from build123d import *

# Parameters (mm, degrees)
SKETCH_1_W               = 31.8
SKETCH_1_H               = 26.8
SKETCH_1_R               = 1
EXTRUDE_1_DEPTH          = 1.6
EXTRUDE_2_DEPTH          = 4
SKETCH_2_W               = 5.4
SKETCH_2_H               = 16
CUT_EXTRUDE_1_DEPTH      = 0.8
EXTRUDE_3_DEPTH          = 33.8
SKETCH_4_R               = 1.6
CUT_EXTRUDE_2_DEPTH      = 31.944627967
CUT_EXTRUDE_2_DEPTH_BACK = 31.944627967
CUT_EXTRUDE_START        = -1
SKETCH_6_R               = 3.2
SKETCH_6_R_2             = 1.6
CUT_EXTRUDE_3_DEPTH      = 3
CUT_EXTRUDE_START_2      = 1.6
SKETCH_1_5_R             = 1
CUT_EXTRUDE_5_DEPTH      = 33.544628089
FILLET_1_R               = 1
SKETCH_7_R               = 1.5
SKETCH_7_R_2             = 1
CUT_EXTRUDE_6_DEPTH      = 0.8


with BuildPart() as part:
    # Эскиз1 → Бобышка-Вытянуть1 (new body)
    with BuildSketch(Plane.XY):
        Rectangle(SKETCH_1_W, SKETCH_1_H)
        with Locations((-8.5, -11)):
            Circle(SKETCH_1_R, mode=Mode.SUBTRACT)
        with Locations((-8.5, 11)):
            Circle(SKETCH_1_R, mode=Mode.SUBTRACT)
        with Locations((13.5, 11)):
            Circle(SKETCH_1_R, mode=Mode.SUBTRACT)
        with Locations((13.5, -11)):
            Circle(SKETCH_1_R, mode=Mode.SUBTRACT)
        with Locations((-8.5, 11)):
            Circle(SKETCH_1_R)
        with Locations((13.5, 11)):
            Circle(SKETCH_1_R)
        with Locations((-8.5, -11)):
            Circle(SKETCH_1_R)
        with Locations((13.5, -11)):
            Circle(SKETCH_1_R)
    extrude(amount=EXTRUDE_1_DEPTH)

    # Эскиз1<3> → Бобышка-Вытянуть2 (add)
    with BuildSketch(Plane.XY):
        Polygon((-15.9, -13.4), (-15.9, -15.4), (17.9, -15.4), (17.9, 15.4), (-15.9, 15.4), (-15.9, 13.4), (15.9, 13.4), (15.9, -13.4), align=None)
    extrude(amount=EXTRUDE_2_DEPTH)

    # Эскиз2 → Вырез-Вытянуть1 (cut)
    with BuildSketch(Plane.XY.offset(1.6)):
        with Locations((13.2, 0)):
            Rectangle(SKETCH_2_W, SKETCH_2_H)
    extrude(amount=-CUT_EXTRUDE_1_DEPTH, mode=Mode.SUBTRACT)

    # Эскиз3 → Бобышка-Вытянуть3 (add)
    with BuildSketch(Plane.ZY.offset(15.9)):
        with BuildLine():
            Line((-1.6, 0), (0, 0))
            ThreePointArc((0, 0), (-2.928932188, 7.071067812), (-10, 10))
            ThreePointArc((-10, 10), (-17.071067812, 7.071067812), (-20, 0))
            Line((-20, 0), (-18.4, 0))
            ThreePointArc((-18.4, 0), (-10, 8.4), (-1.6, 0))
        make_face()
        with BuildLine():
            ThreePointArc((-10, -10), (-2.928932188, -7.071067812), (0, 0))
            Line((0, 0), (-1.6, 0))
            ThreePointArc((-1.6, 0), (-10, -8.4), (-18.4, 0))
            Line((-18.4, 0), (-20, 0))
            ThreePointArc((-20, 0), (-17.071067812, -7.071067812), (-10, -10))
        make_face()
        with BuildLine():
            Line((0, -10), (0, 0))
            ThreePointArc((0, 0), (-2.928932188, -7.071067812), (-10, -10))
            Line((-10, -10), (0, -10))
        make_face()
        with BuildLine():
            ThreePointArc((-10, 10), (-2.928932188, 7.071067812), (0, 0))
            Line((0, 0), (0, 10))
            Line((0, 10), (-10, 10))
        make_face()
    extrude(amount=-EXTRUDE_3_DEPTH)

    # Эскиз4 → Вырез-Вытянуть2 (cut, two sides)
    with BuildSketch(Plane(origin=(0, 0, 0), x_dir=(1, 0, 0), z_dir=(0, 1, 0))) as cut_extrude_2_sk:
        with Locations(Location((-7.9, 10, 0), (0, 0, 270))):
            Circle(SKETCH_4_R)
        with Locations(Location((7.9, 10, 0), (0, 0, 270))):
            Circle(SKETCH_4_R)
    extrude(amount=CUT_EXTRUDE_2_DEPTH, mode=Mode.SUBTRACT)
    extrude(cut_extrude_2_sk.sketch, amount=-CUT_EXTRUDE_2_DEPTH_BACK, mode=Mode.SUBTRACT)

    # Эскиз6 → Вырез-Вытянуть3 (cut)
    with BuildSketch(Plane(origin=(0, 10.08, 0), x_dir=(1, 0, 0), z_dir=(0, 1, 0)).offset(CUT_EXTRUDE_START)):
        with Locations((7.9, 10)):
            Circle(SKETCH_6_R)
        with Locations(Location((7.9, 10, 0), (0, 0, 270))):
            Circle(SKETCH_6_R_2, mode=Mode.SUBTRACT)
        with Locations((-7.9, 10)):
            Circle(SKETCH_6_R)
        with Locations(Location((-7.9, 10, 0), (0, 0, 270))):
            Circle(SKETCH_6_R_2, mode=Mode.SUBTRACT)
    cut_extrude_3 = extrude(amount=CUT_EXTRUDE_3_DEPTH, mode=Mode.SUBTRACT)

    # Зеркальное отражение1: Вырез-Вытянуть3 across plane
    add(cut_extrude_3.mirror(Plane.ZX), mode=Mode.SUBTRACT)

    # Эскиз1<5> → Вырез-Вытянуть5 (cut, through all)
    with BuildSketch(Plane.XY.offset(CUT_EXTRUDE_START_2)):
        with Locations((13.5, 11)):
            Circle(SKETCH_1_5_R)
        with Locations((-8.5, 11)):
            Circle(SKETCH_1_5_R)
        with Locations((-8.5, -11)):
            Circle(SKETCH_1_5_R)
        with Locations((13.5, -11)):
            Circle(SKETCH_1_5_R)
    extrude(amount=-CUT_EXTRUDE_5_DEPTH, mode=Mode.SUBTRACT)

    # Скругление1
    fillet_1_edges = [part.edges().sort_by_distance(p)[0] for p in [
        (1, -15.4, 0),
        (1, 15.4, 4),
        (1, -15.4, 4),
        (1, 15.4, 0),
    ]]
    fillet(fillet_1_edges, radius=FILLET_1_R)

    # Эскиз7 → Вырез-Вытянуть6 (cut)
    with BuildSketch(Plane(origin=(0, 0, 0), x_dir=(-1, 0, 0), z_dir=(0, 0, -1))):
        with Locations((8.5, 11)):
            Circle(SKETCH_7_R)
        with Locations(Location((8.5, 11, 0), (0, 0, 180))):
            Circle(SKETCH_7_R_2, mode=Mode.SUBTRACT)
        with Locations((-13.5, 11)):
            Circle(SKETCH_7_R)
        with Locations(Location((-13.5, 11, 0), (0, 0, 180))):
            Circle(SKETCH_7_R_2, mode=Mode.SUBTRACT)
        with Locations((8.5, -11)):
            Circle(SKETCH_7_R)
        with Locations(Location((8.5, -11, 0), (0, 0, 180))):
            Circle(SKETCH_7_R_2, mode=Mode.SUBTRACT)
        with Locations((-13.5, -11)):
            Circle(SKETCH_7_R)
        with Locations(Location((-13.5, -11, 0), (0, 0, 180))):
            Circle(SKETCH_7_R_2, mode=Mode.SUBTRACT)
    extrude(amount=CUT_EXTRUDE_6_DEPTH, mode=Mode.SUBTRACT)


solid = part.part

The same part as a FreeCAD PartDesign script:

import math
import FreeCAD as App
import Part
import Sketcher
from FreeCAD import Vector
Q = App.Units.Quantity


def edges_at(feature, points):
    """Names of the edges that pass closest to the given points."""
    edges = feature.Shape.Edges
    near = lambda p: min(range(len(edges)), key=lambda i: edges[i].distToShape(Part.Vertex(*p))[0])
    return sorted({f"Edge{near(p) + 1}" for p in points})


def add_polygon(sketch, points):
    """Adds a closed chain of lines whose ends are joined by coincident constraints."""
    first, n = sketch.GeometryCount, len(points)
    for a, b in zip(points, points[1:] + points[:1]):
        sketch.addGeometry(Part.LineSegment(App.Vector(*a, 0), App.Vector(*b, 0)), False)
    for i in range(n):
        sketch.addConstraint(Sketcher.Constraint("Coincident", first + i, 2, first + (i + 1) % n, 1))

doc = App.newDocument("Part")
body = doc.addObject("PartDesign::Body", "Body")

# Sketch on XY plane
sketch1 = body.newObject("Sketcher::SketchObject", "Sketch")
sketch1.AttachmentSupport = (doc.getObject("XY_Plane"), [""])
sketch1.MapMode = "FlatFace"
add_polygon(sketch1, [(-16, 13), (-16, -13), (16, -13), (16, 13)])  # lines 0-3
sketch1.addConstraint([
    Sketcher.Constraint("Vertical", 0),
    Sketcher.Constraint("Horizontal", 1),
    Sketcher.Constraint("Vertical", 2),
    Sketcher.Constraint("Horizontal", 3),
    Sketcher.Constraint("Symmetric", 0, 2, 2, 2, -1, 1),
    Sketcher.Constraint("DistanceX", 1, 1, 1, 2, Q("31.8 mm")),
    Sketcher.Constraint("DistanceY", 0, 2, 0, 1, Q("26.8 mm")),
])
pad1 = body.newObject("PartDesign::Pad", "Pad")
pad1.Profile = sketch1
pad1.Length = 1.6

# Sketch on XY plane
sketch2 = body.newObject("Sketcher::SketchObject", "Sketch001")
sketch2.AttachmentSupport = (doc.getObject("XY_Plane"), [""])
sketch2.MapMode = "FlatFace"
add_polygon(sketch2, [(-15.9, -13.4), (-15.9, -15.4), (17.9, -15.4), (17.9, 15.4), (-15.9, 15.4), (-15.9, 13.4), (15.9, 13.4), (15.9, -13.4)])  # lines 0-7
sketch2.addConstraint([
    Sketcher.Constraint("Vertical", 0),
    Sketcher.Constraint("Horizontal", 1),
    Sketcher.Constraint("Vertical", 2),
    Sketcher.Constraint("Horizontal", 3),
    Sketcher.Constraint("Vertical", 4),
    Sketcher.Constraint("Horizontal", 5),
    Sketcher.Constraint("Vertical", 6),
    Sketcher.Constraint("Horizontal", 7),
    Sketcher.Constraint("Symmetric", 4, 2, 6, 2, -1, 1),
    Sketcher.Constraint("Symmetric", 0, 2, 3, 2, -1),
    Sketcher.Constraint("DistanceY", 0, 2, 0, 1, Q("2 mm")),
    Sketcher.Constraint("DistanceX", 1, 1, 1, 2, Q("33.8 mm")),
    Sketcher.Constraint("DistanceX", 5, 1, 5, 2, Q("31.8 mm")),
    Sketcher.Constraint("DistanceY", 2, 1, 2, 2, Q("30.8 mm")),
])
pad2 = body.newObject("PartDesign::Pad", "Pad001")
pad2.Profile = sketch2
pad2.Length = 4

# Sketch on XY plane
sketch3 = body.newObject("Sketcher::SketchObject", "Sketch002")
sketch3.AttachmentSupport = (doc.getObject("XY_Plane"), [""])
sketch3.MapMode = "FlatFace"
sketch3.AttachmentOffset = App.Placement(Vector(0, 0, 1.6), App.Rotation())
add_polygon(sketch3, [(10, 8), (10, -8), (16, -8), (16, 8)])  # lines 0-3
sketch3.addConstraint([
    Sketcher.Constraint("Vertical", 0),
    Sketcher.Constraint("Horizontal", 1),
    Sketcher.Constraint("Vertical", 2),
    Sketcher.Constraint("Horizontal", 3),
    Sketcher.Constraint("DistanceY", 0, 2, 0, 1, Q("16 mm")),
    Sketcher.Constraint("DistanceX", 1, 1, 1, 2, Q("5.4 mm")),
    Sketcher.Constraint("DistanceY", 0, 2, -1, 1, Q("8 mm")),
    Sketcher.Constraint("DistanceX", -1, 1, 0, 2, Q("10.5 mm")),
])
pocket1 = body.newObject("PartDesign::Pocket", "Pocket")
pocket1.Profile = sketch3
pocket1.Length = 0.8

# Sketch on YZ plane
sketch4 = body.newObject("Sketcher::SketchObject", "Sketch003")
sketch4.AttachmentSupport = (doc.getObject("YZ_Plane"), [""])
sketch4.MapMode = "FlatFace"
sketch4.AttachmentOffset = App.Placement(Vector(0, 0, -15.9), App.Rotation())
sketch4.addGeometry([
    Part.ArcOfCircle(Part.Circle(Vector(0, -10, 0), Vector(0, 0, 1), 10), math.radians(-90), math.radians(0)),  # 0
    Part.ArcOfCircle(Part.Circle(Vector(0, -10, 0), Vector(0, 0, 1), 10), math.radians(180), math.radians(270)),  # 1
    Part.LineSegment(Vector(-10, -10, 0), Vector(-10, 0, 0)),  # 2
    Part.LineSegment(Vector(-10, 0, 0), Vector(10, 0, 0)),  # 3
    Part.LineSegment(Vector(10, 0, 0), Vector(10, -10, 0)),  # 4
    Part.Circle(Vector(0, -10, 0), Vector(0, 0, 1), 8),  # 5
], False)
sketch4.addConstraint([
    Sketcher.Constraint("Tangent", 0, 1, 1, 2),
    Sketcher.Constraint("Tangent", 1, 1, 2, 1),
    Sketcher.Constraint("Coincident", 2, 2, 3, 1),
    Sketcher.Constraint("Coincident", 3, 2, 4, 1),
    Sketcher.Constraint("Tangent", 4, 2, 0, 2),
    Sketcher.Constraint("Vertical", 2),
    Sketcher.Constraint("Horizontal", 3),
    Sketcher.Constraint("Vertical", 4),
    Sketcher.Constraint("Coincident", 5, 3, 0, 3),
    Sketcher.Constraint("Equal", 0, 1),
    Sketcher.Constraint("Symmetric", 2, 2, 3, 2, -1, 1),
    Sketcher.Constraint("PointOnObject", 0, 1, -2),
    Sketcher.Constraint("Radius", 0, Q("10 mm")),
    Sketcher.Constraint("Diameter", 5, Q("16.8 mm")),
    Sketcher.Constraint("DistanceY", 2, 1, 2, 2, Q("10 mm")),
])
pad3 = body.newObject("PartDesign::Pad", "Pad002")
pad3.Profile = sketch4
pad3.Length = 33.8

# Sketch on XZ plane
sketch5 = body.newObject("Sketcher::SketchObject", "Sketch004")
sketch5.AttachmentSupport = (doc.getObject("XZ_Plane"), [""])
sketch5.MapMode = "FlatFace"
sketch5.addGeometry([
    Part.Circle(Vector(-7.9, -10, 0), Vector(0, 0, 1), 1.6),
    Part.Circle(Vector(7.9, -10, 0), Vector(0, 0, 1), 1.6),
], False)
sketch5.addConstraint([
    Sketcher.Constraint("Equal", 0, 1),
    Sketcher.Constraint("Symmetric", 0, 3, 1, 3, -2),
    Sketcher.Constraint("Diameter", 0, Q("3.2 mm")),
    Sketcher.Constraint("DistanceY", 0, 3, -1, 1, Q("10 mm")),
    Sketcher.Constraint("DistanceX", 0, 3, -1, 1, Q("7.9 mm")),
])
pocket2 = body.newObject("PartDesign::Pocket", "Pocket001")
pocket2.Profile = sketch5
pocket2.Type = "ThroughAll"
pocket2.Midplane = True

# Sketch on XZ plane
sketch6 = body.newObject("Sketcher::SketchObject", "Sketch005")
sketch6.AttachmentSupport = (doc.getObject("XZ_Plane"), [""])
sketch6.MapMode = "FlatFace"
sketch6.AttachmentOffset = App.Placement(Vector(0, 0, -9.08), App.Rotation())
sketch6.addGeometry([
    Part.Circle(Vector(7.9, -10, 0), Vector(0, 0, 1), 3.2),
    Part.Circle(Vector(7.9, -10, 0), Vector(0, 0, 1), 1.6),
    Part.Circle(Vector(-7.9, -10, 0), Vector(0, 0, 1), 3.2),
    Part.Circle(Vector(-7.9, -10, 0), Vector(0, 0, 1), 1.6),
], False)
sketch6.addConstraint([
    Sketcher.Constraint("Coincident", 1, 3, 0, 3),
    Sketcher.Constraint("Coincident", 3, 3, 2, 3),
    Sketcher.Constraint("Equal", 0, 2),
    Sketcher.Constraint("Equal", 1, 3),
    Sketcher.Constraint("Symmetric", 0, 3, 2, 3, -2),
    Sketcher.Constraint("Diameter", 0, Q("6.4 mm")),
    Sketcher.Constraint("Diameter", 1, Q("3.2 mm")),
    Sketcher.Constraint("DistanceY", 0, 3, -1, 1, Q("10 mm")),
    Sketcher.Constraint("DistanceX", -1, 1, 0, 3, Q("7.9 mm")),
])
pocket3 = body.newObject("PartDesign::Pocket", "Pocket002")
pocket3.Profile = sketch6
pocket3.Length = 3
doc.recompute()

mirrored = body.newObject("PartDesign::Mirrored", "Mirrored")
mirrored.Originals = [pocket3]
mirrored.MirrorPlane = (doc.getObject("XZ_Plane"), [""])
body.Tip = mirrored

# Sketch on XY plane
sketch7 = body.newObject("Sketcher::SketchObject", "Sketch006")
sketch7.AttachmentSupport = (doc.getObject("XY_Plane"), [""])
sketch7.MapMode = "FlatFace"
sketch7.AttachmentOffset = App.Placement(Vector(0, 0, 1.6), App.Rotation())
sketch7.addGeometry([
    Part.Circle(Vector(13.5, 11, 0), Vector(0, 0, 1), 1),
    Part.Circle(Vector(-8.5, 11, 0), Vector(0, 0, 1), 1),
    Part.Circle(Vector(-8.5, -11, 0), Vector(0, 0, 1), 1),
    Part.Circle(Vector(13.5, -11, 0), Vector(0, 0, 1), 1),
], False)
sketch7.addConstraint([
    Sketcher.Constraint("Equal", 0, 1),
    Sketcher.Constraint("Equal", 1, 2),
    Sketcher.Constraint("Equal", 2, 3),
    Sketcher.Constraint("Symmetric", 1, 3, 2, 3, -1),
    Sketcher.Constraint("Symmetric", 0, 3, 3, 3, -1),
    Sketcher.Constraint("Horizontal", 0, 3, 1, 3),
    Sketcher.Constraint("Diameter", 0, Q("2 mm")),
    Sketcher.Constraint("DistanceY", -1, 1, 0, 3, Q("11 mm")),
    Sketcher.Constraint("DistanceX", 1, 3, 0, 3, Q("22 mm")),
    Sketcher.Constraint("DistanceX", -1, 1, 0, 3, Q("13.5 mm")),
])
pocket4 = body.newObject("PartDesign::Pocket", "Pocket003")
pocket4.Profile = sketch7
pocket4.Type = "ThroughAll"
doc.recompute()

fillet = body.newObject("PartDesign::Fillet", "Fillet")
fillet.Base = (pocket4, edges_at(pocket4, [
    (1, -15.4, 0),
    (1, 15.4, 4),
    (1, -15.4, 4),
    (1, 15.4, 0),
]))
fillet.Radius = 1

# Sketch on XY plane
sketch8 = body.newObject("Sketcher::SketchObject", "Sketch007")
sketch8.AttachmentSupport = (doc.getObject("XY_Plane"), [""])
sketch8.MapMode = "FlatFace"
sketch8.addGeometry([
    Part.Circle(Vector(-8.5, 11, 0), Vector(0, 0, 1), 1.5),  # 0
    Part.Circle(Vector(-8.5, 11, 0), Vector(0, 0, 1), 1),  # 1
    Part.Circle(Vector(13.5, 11, 0), Vector(0, 0, 1), 1.5),  # 2
    Part.Circle(Vector(13.5, 11, 0), Vector(0, 0, 1), 1),  # 3
    Part.Circle(Vector(-8.5, -11, 0), Vector(0, 0, 1), 1.5),  # 4
    Part.Circle(Vector(-8.5, -11, 0), Vector(0, 0, 1), 1),  # 5
    Part.Circle(Vector(13.5, -11, 0), Vector(0, 0, 1), 1.5),  # 6
    Part.Circle(Vector(13.5, -11, 0), Vector(0, 0, 1), 1),  # 7
], False)
sketch8.addConstraint([
    Sketcher.Constraint("Coincident", 1, 3, 0, 3),
    Sketcher.Constraint("Coincident", 3, 3, 2, 3),
    Sketcher.Constraint("Coincident", 5, 3, 4, 3),
    Sketcher.Constraint("Coincident", 7, 3, 6, 3),
    Sketcher.Constraint("Equal", 0, 2),
    Sketcher.Constraint("Equal", 1, 3),
    Sketcher.Constraint("Equal", 2, 4),
    Sketcher.Constraint("Equal", 3, 5),
    Sketcher.Constraint("Equal", 4, 6),
    Sketcher.Constraint("Equal", 5, 7),
    Sketcher.Constraint("Symmetric", 0, 3, 4, 3, -1),
    Sketcher.Constraint("Symmetric", 2, 3, 6, 3, -1),
    Sketcher.Constraint("Horizontal", 1, 3, 2, 3),
    Sketcher.Constraint("Diameter", 0, Q("3 mm")),
    Sketcher.Constraint("Diameter", 1, Q("2 mm")),
    Sketcher.Constraint("DistanceY", -1, 1, 0, 3, Q("11 mm")),
    Sketcher.Constraint("DistanceX", 0, 3, 2, 3, Q("22 mm")),
    Sketcher.Constraint("DistanceX", 0, 3, -1, 1, Q("8.5 mm")),
])
pocket5 = body.newObject("PartDesign::Pocket", "Pocket004")
pocket5.Profile = sketch8
pocket5.Length = 0.8

doc.recompute()
